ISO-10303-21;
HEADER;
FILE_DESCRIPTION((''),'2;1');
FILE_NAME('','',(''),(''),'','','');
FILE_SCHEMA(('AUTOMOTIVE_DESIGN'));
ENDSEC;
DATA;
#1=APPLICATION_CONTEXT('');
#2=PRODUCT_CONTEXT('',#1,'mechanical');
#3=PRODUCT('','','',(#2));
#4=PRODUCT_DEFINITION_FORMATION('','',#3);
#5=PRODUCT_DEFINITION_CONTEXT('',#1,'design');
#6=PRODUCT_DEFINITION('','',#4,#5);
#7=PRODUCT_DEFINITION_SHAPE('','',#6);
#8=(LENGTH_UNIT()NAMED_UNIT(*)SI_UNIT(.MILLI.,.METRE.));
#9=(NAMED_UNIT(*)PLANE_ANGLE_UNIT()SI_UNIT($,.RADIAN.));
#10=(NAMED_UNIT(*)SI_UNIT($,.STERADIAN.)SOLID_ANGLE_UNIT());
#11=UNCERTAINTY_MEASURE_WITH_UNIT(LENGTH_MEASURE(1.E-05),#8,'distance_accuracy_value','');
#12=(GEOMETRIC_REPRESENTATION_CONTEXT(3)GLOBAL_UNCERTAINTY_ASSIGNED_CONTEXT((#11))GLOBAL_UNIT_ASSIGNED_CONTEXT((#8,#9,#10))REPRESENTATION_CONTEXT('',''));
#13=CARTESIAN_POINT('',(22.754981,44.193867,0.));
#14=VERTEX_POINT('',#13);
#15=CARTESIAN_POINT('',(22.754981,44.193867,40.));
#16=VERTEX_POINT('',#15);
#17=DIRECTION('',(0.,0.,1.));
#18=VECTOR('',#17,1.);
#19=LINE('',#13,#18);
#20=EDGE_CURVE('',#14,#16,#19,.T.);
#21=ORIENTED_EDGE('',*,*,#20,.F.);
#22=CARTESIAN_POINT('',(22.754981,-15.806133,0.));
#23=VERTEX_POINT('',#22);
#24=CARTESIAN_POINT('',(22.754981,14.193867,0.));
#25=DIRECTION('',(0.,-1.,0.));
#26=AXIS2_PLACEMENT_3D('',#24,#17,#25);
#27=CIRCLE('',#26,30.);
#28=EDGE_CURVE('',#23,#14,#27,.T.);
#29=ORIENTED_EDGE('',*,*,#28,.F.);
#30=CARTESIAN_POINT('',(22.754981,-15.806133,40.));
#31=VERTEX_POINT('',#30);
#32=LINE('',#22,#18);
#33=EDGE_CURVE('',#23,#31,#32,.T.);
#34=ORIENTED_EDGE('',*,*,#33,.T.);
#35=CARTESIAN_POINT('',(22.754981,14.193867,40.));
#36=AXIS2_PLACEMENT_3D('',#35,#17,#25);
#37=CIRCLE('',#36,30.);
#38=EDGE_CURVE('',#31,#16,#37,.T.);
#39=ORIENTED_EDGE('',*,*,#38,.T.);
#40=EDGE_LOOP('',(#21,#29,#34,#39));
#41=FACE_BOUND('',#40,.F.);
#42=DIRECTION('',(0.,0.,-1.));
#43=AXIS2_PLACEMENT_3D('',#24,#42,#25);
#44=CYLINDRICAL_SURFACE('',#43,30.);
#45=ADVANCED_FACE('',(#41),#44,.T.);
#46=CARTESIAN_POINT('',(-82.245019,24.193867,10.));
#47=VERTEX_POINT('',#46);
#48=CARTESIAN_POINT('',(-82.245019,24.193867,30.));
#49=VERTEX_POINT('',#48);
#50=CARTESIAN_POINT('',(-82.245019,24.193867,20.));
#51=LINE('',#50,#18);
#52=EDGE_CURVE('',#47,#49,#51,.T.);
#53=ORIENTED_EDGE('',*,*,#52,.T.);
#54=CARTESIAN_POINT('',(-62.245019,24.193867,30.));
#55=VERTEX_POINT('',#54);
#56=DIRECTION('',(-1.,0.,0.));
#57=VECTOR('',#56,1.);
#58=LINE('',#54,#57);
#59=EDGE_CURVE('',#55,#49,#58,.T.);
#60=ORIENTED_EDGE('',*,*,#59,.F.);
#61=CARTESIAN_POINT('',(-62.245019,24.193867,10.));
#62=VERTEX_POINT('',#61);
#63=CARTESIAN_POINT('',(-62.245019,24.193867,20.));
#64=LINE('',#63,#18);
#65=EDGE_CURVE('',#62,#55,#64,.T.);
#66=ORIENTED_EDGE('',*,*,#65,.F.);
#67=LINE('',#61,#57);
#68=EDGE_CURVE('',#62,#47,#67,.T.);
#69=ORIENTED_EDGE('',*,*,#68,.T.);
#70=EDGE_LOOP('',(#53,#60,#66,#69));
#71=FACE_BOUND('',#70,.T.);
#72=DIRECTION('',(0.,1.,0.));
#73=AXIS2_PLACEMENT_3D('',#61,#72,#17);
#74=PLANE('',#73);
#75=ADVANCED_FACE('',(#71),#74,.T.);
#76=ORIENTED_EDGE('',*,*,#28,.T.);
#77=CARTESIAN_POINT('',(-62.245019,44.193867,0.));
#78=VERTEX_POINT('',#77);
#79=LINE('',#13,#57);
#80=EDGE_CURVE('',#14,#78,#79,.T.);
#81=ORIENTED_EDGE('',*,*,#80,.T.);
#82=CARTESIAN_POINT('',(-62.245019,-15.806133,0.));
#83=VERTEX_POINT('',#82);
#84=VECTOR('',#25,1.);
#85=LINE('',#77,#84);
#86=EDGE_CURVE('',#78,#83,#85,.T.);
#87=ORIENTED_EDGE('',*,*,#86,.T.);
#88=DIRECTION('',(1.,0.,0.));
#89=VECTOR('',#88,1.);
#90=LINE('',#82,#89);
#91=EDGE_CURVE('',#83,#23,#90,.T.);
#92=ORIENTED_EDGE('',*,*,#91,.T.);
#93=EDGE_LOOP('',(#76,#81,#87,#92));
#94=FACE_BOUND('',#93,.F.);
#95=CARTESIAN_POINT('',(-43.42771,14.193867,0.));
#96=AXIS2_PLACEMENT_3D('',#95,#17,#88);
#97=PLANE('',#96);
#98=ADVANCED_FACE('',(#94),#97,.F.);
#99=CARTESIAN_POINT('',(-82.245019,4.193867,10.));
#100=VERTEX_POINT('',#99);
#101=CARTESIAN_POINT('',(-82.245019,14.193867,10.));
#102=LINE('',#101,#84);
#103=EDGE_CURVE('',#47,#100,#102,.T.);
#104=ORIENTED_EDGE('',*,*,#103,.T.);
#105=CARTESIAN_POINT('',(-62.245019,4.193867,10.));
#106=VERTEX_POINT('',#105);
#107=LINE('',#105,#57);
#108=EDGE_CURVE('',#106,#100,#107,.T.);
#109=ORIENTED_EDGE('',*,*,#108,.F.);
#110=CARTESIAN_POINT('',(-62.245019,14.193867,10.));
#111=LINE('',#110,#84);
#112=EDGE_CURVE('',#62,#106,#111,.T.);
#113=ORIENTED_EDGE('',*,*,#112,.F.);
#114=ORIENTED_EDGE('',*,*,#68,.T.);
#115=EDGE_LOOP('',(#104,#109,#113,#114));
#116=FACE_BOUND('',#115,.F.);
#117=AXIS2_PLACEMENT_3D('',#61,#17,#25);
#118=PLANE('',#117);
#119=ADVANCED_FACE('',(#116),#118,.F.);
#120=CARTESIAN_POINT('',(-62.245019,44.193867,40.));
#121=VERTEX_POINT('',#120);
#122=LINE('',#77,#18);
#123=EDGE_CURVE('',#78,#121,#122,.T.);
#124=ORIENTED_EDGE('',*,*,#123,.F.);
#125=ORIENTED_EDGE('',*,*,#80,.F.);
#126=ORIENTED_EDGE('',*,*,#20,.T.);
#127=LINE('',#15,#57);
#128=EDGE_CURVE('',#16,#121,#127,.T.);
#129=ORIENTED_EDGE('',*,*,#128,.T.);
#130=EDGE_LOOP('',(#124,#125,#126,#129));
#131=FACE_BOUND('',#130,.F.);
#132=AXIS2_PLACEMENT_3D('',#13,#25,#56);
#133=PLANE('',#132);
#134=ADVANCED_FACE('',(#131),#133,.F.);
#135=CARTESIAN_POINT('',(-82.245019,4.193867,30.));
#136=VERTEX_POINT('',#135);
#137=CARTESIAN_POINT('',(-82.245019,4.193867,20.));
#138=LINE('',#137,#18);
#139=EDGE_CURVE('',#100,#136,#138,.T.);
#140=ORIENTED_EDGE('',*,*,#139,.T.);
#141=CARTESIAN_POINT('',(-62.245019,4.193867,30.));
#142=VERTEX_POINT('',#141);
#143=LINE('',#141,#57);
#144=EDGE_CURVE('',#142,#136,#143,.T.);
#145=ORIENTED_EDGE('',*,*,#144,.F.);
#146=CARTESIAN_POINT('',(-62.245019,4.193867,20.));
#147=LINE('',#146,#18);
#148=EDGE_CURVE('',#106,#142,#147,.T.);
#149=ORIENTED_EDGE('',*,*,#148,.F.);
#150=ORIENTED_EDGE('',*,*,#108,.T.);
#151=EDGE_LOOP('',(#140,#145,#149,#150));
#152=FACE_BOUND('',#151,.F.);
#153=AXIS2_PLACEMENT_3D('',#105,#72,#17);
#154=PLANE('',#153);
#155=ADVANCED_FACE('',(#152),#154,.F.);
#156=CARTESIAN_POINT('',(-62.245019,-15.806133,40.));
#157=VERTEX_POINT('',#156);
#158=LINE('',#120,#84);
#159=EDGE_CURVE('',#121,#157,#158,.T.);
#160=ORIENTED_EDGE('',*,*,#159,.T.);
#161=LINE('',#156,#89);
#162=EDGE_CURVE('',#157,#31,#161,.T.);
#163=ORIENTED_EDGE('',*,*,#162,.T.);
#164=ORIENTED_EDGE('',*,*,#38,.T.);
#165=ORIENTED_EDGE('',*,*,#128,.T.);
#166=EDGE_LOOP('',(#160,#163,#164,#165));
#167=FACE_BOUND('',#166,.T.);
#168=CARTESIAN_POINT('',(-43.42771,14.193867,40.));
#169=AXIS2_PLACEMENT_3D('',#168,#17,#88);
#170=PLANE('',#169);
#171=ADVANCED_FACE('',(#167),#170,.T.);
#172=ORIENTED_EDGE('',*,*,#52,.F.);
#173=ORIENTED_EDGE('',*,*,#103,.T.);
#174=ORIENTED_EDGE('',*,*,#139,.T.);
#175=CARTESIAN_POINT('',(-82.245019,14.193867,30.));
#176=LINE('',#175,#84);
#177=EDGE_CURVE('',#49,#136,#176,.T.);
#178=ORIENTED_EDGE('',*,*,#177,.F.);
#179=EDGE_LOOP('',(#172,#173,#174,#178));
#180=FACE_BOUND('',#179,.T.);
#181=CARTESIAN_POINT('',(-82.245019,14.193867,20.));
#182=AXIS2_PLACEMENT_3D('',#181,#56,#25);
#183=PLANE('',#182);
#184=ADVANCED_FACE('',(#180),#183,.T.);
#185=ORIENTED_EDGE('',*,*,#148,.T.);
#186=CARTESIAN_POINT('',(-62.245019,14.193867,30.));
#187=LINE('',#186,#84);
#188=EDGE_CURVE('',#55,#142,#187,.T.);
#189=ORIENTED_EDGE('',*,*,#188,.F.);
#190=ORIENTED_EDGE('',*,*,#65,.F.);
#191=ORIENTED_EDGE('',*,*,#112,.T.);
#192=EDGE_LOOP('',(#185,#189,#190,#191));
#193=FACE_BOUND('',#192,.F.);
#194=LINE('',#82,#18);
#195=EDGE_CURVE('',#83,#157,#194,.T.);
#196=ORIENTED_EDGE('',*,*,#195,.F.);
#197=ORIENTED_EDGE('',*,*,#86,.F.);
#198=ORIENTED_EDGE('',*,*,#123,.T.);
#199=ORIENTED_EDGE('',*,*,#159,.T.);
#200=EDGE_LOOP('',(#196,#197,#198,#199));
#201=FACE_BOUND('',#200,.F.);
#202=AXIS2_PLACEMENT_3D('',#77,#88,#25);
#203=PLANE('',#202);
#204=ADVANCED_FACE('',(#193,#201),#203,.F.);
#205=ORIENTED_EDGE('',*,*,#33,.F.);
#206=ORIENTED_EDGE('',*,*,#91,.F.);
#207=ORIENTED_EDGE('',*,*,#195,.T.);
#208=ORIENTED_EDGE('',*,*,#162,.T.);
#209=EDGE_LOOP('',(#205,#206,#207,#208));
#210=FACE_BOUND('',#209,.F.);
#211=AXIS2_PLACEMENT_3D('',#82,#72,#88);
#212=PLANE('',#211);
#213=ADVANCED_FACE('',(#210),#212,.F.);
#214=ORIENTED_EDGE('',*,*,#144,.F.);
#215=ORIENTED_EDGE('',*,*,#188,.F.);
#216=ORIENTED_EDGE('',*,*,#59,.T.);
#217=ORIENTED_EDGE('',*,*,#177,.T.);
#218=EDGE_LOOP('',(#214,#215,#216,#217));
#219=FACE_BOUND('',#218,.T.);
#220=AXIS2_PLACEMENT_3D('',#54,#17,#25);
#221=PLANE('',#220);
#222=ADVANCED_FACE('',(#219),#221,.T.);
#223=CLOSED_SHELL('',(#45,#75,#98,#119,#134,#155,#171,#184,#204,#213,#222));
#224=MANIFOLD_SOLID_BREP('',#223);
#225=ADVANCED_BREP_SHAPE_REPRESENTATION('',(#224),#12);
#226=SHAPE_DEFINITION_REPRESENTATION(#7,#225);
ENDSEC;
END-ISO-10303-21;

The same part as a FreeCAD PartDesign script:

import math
import FreeCAD as App
import Part
import Sketcher


def add_polygon(sketch, points):
    """Adds a closed chain of lines whose ends are joined by coincident constraints."""
    first, n = sketch.GeometryCount, len(points)
    for a, b in zip(points, points[1:] + points[:1]):
        sketch.addGeometry(Part.LineSegment(App.Vector(*a, 0), App.Vector(*b, 0)), False)
    for i in range(n):
        sketch.addConstraint(Sketcher.Constraint("Coincident", first + i, 2, first + (i + 1) % n, 1))

doc = App.newDocument("Part")
params = doc.addObject("Spreadsheet::Sheet", "Params")
for row, (alias, value) in enumerate([
    ("sketch1_radius", "30 mm"),
    ("sketch1_width", "85 mm"),
    ("pad1_length", "40 mm"),
    ("sketch2_width", "20 mm"),
    ("pad2_length", "20 mm"),
], start=1):
    params.set(f"A{row}", alias)
    params.set(f"B{row}", "=" + value)
    params.setAlias(f"B{row}", alias)

body = doc.addObject("PartDesign::Body", "Body")

sketch1 = body.newObject("Sketcher::SketchObject", "Sketch")
sketch1.AttachmentSupport = (doc.getObject("XY_Plane"), [""])
sketch1.MapMode = "FlatFace"
sketch1.addGeometry(Part.LineSegment(App.Vector(-62, 44, 0), App.Vector(-62, -16, 0)), False)
sketch1.addGeometry(Part.LineSegment(App.Vector(-62, -16, 0), App.Vector(23, -16, 0)), False)
sketch1.addGeometry(Part.ArcOfCircle(Part.Circle(App.Vector(23, 14, 0), App.Vector(0, 0, 1), 30), math.radians(-90), math.radians(90)), False)
sketch1.addGeometry(Part.LineSegment(App.Vector(23, 44, 0), App.Vector(-62, 44, 0)), False)
sketch1.addConstraint(Sketcher.Constraint("Coincident", 0, 2, 1, 1))
sketch1.addConstraint(Sketcher.Constraint("Tangent", 1, 2, 2, 1))
sketch1.addConstraint(Sketcher.Constraint("Tangent", 2, 2, 3, 1))
sketch1.addConstraint(Sketcher.Constraint("Coincident", 3, 2, 0, 1))
sketch1.addConstraint(Sketcher.Constraint("Vertical", 0))
sketch1.addConstraint(Sketcher.Constraint("Horizontal", 1))
sketch1.addConstraint(Sketcher.Constraint("Horizontal", 3))
sketch1.addConstraint(Sketcher.Constraint("Radius", 2, 30.0))
sketch1.addConstraint(Sketcher.Constraint("DistanceX", 1, 1, 1, 2, 85.0))
sketch1.addConstraint(Sketcher.Constraint("DistanceX", -1, 1, 2, 3, 22.754981))
sketch1.addConstraint(Sketcher.Constraint("DistanceY", -1, 1, 2, 3, 14.193867))
sketch1.setExpression("Constraints[7]", "Params.sketch1_radius")
sketch1.setExpression("Constraints[8]", "Params.sketch1_width")
pad1 = body.newObject("PartDesign::Pad", "Pad")
pad1.Profile = sketch1
pad1.setExpression("Length", "Params.pad1_length")

sketch2 = body.newObject("Sketcher::SketchObject", "Sketch001")
sketch2.AttachmentSupport = (doc.getObject("YZ_Plane"), [""])
sketch2.MapMode = "FlatFace"
sketch2.AttachmentOffset = App.Placement(App.Vector(0, 0, -62.245019), App.Rotation())
add_polygon(sketch2, [(24, 30), (24, 10), (4, 10), (4, 30)])
sketch2.addConstraint(Sketcher.Constraint("Vertical", 0))
sketch2.addConstraint(Sketcher.Constraint("Horizontal", 1))
sketch2.addConstraint(Sketcher.Constraint("Vertical", 2))
sketch2.addConstraint(Sketcher.Constraint("Horizontal", 3))
sketch2.addConstraint(Sketcher.Constraint("Equal", 3, 0))
sketch2.addConstraint(Sketcher.Constraint("DistanceX", 1, 2, 1, 1, 20.0))
sketch2.addConstraint(Sketcher.Constraint("DistanceY", -1, 1, 0, 2, 10.0))
sketch2.addConstraint(Sketcher.Constraint("DistanceX", -1, 1, 0, 2, 24.193867))
sketch2.setExpression("Constraints[9]", "Params.sketch2_width")
pad2 = body.newObject("PartDesign::Pad", "Pad001")
pad2.Profile = sketch2
pad2.setExpression("Length", "Params.pad2_length")
pad2.Reversed = True

doc.recompute()
